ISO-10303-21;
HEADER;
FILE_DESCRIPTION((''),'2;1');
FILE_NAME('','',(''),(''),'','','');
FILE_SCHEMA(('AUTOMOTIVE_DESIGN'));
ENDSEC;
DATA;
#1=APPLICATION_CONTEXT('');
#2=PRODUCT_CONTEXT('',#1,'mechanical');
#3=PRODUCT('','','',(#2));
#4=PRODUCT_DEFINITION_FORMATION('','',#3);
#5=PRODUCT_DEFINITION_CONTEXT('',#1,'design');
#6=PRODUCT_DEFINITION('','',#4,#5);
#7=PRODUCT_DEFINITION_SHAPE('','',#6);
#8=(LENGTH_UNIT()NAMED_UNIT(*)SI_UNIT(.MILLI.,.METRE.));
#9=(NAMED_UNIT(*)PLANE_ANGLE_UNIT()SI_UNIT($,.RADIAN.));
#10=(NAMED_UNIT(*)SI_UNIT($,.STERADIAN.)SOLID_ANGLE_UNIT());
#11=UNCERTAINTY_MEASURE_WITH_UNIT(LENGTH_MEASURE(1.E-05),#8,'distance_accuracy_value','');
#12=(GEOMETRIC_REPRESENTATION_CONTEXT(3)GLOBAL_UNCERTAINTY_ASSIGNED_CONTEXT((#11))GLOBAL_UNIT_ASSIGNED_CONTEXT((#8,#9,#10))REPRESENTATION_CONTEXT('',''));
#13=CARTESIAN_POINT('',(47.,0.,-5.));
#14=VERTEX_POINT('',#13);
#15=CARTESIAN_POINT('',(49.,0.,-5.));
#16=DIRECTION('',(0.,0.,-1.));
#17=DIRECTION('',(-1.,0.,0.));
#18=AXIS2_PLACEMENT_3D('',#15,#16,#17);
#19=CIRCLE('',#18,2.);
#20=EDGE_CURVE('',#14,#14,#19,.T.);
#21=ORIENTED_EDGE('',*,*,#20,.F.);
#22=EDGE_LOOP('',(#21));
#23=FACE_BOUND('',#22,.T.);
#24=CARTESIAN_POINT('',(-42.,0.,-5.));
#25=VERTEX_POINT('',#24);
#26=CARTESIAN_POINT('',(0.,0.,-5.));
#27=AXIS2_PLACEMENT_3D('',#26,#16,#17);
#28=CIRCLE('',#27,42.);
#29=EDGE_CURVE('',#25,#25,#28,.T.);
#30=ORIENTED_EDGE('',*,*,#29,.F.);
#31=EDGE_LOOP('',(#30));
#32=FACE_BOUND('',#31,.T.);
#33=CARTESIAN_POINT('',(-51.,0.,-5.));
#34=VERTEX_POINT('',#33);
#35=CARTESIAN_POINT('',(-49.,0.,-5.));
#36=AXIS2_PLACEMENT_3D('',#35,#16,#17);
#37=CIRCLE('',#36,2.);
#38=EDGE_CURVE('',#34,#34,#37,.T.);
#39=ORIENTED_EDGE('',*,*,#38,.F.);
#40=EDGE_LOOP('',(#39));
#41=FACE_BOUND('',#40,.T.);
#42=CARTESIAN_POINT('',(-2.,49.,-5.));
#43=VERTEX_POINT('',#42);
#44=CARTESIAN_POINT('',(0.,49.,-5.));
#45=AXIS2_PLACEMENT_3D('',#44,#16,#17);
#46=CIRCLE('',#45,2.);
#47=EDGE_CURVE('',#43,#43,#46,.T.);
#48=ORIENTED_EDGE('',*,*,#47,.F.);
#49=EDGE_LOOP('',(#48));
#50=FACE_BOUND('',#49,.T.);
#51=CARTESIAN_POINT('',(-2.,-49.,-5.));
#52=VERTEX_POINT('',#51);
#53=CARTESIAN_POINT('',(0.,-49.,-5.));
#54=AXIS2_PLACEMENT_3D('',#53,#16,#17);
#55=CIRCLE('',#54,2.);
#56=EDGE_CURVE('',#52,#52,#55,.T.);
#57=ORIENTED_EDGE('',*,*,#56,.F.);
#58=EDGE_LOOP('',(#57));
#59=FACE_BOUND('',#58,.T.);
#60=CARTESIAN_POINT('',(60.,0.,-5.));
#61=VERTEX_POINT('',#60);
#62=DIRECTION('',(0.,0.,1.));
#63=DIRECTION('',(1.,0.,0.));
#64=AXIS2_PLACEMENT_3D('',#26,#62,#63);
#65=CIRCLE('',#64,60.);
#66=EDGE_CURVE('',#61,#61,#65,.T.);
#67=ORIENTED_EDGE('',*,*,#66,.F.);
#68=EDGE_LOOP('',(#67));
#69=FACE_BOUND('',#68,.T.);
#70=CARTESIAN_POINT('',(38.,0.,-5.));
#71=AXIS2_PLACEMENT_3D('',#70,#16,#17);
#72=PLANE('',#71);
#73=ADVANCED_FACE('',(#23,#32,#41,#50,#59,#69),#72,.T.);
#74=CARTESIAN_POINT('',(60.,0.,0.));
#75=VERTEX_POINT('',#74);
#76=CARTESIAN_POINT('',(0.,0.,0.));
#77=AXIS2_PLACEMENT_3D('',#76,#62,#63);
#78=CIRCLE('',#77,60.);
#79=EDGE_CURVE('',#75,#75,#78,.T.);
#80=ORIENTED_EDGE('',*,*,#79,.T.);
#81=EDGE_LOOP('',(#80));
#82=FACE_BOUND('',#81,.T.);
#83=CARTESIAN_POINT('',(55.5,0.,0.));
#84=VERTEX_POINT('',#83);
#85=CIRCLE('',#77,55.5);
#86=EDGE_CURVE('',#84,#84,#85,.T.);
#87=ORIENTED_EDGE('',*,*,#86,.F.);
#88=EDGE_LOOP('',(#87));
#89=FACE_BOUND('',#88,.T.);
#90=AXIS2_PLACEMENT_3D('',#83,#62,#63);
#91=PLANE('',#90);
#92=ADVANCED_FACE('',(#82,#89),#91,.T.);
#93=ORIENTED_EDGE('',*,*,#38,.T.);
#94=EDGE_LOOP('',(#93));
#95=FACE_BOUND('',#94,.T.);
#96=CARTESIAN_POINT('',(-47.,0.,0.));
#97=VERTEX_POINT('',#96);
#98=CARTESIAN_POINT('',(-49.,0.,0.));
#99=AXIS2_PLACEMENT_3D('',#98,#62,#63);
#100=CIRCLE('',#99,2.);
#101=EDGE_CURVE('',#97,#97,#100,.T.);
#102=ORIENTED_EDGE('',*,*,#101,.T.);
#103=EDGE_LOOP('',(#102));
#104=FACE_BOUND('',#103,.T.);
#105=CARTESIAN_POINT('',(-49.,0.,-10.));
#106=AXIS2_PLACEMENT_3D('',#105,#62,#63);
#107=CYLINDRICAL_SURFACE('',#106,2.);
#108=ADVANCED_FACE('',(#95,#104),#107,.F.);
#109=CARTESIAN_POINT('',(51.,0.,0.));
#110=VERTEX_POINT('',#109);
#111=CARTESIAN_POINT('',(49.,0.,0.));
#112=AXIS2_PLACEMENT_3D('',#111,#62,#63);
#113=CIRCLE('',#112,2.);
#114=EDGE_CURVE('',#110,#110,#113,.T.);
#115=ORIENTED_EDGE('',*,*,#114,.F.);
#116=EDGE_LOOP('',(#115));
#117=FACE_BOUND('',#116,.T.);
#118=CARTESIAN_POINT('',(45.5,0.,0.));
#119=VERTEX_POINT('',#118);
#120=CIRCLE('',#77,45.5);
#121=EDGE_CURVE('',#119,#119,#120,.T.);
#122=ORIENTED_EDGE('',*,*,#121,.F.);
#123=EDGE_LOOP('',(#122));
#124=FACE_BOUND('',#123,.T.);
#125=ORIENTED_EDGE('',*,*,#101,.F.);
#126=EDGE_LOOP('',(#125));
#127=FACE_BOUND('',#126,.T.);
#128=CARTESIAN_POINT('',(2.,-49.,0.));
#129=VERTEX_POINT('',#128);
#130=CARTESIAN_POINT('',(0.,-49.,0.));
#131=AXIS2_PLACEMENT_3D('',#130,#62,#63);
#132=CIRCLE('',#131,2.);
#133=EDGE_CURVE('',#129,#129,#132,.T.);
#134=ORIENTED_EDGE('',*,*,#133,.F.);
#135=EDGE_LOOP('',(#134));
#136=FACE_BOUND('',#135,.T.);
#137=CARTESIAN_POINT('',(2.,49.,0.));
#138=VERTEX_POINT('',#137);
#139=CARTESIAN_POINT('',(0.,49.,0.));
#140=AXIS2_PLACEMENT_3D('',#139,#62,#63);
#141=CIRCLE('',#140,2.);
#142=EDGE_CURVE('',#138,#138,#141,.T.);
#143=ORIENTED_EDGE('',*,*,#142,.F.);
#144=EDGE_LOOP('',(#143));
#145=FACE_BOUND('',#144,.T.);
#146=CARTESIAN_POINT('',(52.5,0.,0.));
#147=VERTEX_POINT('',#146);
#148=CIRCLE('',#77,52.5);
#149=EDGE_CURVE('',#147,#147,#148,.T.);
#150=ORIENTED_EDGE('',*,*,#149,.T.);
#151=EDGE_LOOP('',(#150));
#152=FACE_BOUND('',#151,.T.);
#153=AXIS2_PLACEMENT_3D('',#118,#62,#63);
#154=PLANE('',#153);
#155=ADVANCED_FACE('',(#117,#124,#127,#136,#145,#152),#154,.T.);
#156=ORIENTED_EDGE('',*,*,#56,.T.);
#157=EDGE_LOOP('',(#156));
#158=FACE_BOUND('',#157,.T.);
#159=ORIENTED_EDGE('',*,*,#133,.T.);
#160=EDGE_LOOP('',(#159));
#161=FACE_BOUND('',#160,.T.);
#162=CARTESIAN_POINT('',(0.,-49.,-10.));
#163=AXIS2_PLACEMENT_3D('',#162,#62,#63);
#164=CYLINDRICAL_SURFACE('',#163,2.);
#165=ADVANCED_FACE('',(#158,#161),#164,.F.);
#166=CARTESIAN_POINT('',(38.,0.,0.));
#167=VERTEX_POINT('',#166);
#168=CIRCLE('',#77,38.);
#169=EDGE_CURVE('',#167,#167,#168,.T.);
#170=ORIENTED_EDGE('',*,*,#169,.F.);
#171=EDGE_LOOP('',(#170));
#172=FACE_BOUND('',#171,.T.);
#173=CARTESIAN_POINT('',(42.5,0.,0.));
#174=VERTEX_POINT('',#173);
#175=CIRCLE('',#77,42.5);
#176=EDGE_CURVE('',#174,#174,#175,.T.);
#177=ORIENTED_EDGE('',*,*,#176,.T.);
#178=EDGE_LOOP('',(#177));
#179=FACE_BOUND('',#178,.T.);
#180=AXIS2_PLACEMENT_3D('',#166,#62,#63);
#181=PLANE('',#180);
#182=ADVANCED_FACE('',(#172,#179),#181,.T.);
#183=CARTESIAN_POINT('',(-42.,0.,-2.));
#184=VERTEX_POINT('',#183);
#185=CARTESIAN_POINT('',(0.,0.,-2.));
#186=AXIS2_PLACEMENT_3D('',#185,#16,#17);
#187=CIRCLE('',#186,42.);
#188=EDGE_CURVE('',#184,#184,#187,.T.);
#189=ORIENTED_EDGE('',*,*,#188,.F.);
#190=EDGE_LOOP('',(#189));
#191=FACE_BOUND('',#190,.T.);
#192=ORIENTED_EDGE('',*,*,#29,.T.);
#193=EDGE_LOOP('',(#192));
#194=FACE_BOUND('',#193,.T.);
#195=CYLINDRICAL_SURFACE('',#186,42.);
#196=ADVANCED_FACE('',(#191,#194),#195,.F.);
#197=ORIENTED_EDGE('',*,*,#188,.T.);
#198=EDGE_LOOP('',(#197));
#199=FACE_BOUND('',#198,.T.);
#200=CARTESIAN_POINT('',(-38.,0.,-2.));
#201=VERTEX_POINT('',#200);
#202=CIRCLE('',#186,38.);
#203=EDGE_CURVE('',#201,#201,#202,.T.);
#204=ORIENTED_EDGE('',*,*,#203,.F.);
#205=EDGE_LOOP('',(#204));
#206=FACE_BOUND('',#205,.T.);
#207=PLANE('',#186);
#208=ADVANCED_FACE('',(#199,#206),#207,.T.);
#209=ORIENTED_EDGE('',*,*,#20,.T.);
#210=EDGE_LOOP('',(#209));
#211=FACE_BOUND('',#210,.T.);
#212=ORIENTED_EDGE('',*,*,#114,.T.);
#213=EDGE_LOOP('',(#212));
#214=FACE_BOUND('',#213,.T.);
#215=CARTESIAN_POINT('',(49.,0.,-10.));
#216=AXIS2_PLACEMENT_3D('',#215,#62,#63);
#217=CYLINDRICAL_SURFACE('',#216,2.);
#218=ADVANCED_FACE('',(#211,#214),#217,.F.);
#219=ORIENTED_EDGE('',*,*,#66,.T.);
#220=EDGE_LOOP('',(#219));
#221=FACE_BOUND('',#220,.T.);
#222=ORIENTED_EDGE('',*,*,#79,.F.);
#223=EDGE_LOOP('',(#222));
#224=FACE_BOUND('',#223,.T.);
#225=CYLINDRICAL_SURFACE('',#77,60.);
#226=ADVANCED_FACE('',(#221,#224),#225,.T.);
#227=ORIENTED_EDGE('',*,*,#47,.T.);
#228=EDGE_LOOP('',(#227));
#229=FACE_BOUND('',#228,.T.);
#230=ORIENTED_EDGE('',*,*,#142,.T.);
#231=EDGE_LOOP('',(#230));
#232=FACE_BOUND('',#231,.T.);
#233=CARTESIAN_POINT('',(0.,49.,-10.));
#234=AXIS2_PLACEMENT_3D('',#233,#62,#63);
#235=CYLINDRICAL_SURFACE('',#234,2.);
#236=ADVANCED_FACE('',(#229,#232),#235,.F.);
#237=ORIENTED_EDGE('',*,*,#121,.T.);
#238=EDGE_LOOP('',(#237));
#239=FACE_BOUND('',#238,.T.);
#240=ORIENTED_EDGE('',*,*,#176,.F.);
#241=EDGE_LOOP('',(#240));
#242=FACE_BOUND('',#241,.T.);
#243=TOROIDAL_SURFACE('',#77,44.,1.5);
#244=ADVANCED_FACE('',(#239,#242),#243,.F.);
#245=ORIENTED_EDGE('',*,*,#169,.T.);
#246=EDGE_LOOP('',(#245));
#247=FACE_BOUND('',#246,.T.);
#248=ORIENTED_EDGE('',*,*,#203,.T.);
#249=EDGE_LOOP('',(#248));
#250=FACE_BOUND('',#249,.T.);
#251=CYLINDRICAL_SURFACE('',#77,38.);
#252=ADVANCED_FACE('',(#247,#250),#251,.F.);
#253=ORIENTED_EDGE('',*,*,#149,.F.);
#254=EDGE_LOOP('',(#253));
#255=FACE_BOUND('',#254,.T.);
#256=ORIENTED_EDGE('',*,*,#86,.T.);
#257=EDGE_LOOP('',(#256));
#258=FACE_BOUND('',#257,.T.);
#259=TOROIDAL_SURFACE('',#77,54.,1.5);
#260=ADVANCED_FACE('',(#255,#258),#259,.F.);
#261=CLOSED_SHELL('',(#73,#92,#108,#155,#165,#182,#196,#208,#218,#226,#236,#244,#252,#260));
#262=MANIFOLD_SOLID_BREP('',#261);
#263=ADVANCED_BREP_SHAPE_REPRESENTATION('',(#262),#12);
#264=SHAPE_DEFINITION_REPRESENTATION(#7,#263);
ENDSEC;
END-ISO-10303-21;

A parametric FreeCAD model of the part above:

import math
import FreeCAD as App
import Part
import Sketcher

V = App.Vector

doc = App.newDocument("Part")
body = doc.addObject("PartDesign::Body", "Body")

sketch1 = doc.addObject("Sketcher::SketchObject", "Sketch")
body.addObject(sketch1)
sketch1.AttachmentSupport = (doc.XZ_Plane, [""])
sketch1.MapMode = "FlatFace"
sketch1.addGeometry([
    Part.LineSegment(V(60, 0, 0), V(60, -5, 0)),
    Part.LineSegment(V(60, -5, 0), V(38, -5, 0)),
    Part.LineSegment(V(38, -5, 0), V(38, 0, 0)),
    Part.LineSegment(V(38, 0, 0), V(42.5, 0, 0)),
    Part.ArcOfCircle(Part.Circle(V(44, 0, 0), V(0, 0, 1), 1.5), math.radians(180), math.radians(360)),
    Part.LineSegment(V(45.5, 0, 0), V(52.5, 0, 0)),
    Part.ArcOfCircle(Part.Circle(V(54, 0, 0), V(0, 0, 1), 1.5), math.radians(180), math.radians(360)),
    Part.LineSegment(V(55.5, 0, 0), V(60, 0, 0)),
], False)
sketch1.addConstraint([
    Sketcher.Constraint("Coincident", 0, 2, 1, 1),
    Sketcher.Constraint("Coincident", 1, 2, 2, 1),
    Sketcher.Constraint("Coincident", 2, 2, 3, 1),
    Sketcher.Constraint("Coincident", 3, 2, 4, 1),
    Sketcher.Constraint("Coincident", 4, 2, 5, 1),
    Sketcher.Constraint("Coincident", 5, 2, 6, 1),
    Sketcher.Constraint("Coincident", 6, 2, 7, 1),
    Sketcher.Constraint("Coincident", 7, 2, 0, 1),
    Sketcher.Constraint("Vertical", 0),
    Sketcher.Constraint("Horizontal", 1),
    Sketcher.Constraint("Vertical", 2),
    Sketcher.Constraint("Horizontal", 3),
    Sketcher.Constraint("Horizontal", 5),
    Sketcher.Constraint("Horizontal", 7),
    Sketcher.Constraint("Equal", 4, 6),
    Sketcher.Constraint("PointOnObject", 4, 3, -1),
    Sketcher.Constraint("PointOnObject", 6, 3, -1),
    Sketcher.Constraint("PointOnObject", 2, 2, -1),
    Sketcher.Constraint("PointOnObject", 4, 2, -1),
    Sketcher.Constraint("PointOnObject", 6, 2, -1),
    Sketcher.Constraint("Equal", 3, 7),
    Sketcher.Constraint("Radius", 4, 1.5),
    Sketcher.Constraint("DistanceX", 1, 2, 1, 1, 22.0),
    Sketcher.Constraint("DistanceX", 5, 1, 5, 2, 7.0),
    Sketcher.Constraint("DistanceY", 0, 2, 0, 1, 5.0),
    Sketcher.Constraint("DistanceX", -1, 1, 4, 3, 44.0),
])
revolution = doc.addObject("PartDesign::Revolution", "Revolution")
body.addObject(revolution)
revolution.Profile = sketch1
revolution.ReferenceAxis = (sketch1, ["V_Axis"])
revolution.Angle = 360

sketch2 = doc.addObject("Sketcher::SketchObject", "Sketch001")
body.addObject(sketch2)
sketch2.AttachmentSupport = (doc.XY_Plane, [""])
sketch2.MapMode = "FlatFace"
sketch2.addGeometry([
    Part.Circle(V(49, 0, 0), V(0, 0, 1), 2),
    Part.Circle(V(-49, 0, 0), V(0, 0, 1), 2),
    Part.Circle(V(0, 49, 0), V(0, 0, 1), 2),
    Part.Circle(V(0, -49, 0), V(0, 0, 1), 2),
], False)
sketch2.addConstraint([
    Sketcher.Constraint("Equal", 0, 1),
    Sketcher.Constraint("Equal", 1, 2),
    Sketcher.Constraint("Equal", 2, 3),
    Sketcher.Constraint("Symmetric", 0, 3, 1, 3, -1, 1),
    Sketcher.Constraint("Symmetric", 2, 3, 3, 3, -1, 1),
    Sketcher.Constraint("PointOnObject", 0, 3, -1),
    Sketcher.Constraint("PointOnObject", 2, 3, -2),
    Sketcher.Constraint("Diameter", 0, 4.0),
    Sketcher.Constraint("DistanceX", -1, 1, 0, 3, 49.0),
    Sketcher.Constraint("DistanceY", -1, 1, 2, 3, 49.0),
])
pocket1 = doc.addObject("PartDesign::Pocket", "Pocket")
body.addObject(pocket1)
pocket1.Profile = sketch2
pocket1.Length = 10

sketch3 = doc.addObject("Sketcher::SketchObject", "Sketch002")
body.addObject(sketch3)
sketch3.AttachmentSupport = (doc.XY_Plane, [""])
sketch3.MapMode = "FlatFace"
sketch3.AttachmentOffset = App.Placement(V(0, 0, -5), App.Rotation())
sketch3.addGeometry(Part.Circle(V(0, 0, 0), V(0, 0, 1), 42), False)
sketch3.addConstraint([
    Sketcher.Constraint("Coincident", 0, 3, -1, 1),
    Sketcher.Constraint("Diameter", 0, 84.0),
])
pocket2 = doc.addObject("PartDesign::Pocket", "Pocket001")
body.addObject(pocket2)
pocket2.Profile = sketch3
pocket2.Length = 3
pocket2.Reversed = True

doc.recompute()
